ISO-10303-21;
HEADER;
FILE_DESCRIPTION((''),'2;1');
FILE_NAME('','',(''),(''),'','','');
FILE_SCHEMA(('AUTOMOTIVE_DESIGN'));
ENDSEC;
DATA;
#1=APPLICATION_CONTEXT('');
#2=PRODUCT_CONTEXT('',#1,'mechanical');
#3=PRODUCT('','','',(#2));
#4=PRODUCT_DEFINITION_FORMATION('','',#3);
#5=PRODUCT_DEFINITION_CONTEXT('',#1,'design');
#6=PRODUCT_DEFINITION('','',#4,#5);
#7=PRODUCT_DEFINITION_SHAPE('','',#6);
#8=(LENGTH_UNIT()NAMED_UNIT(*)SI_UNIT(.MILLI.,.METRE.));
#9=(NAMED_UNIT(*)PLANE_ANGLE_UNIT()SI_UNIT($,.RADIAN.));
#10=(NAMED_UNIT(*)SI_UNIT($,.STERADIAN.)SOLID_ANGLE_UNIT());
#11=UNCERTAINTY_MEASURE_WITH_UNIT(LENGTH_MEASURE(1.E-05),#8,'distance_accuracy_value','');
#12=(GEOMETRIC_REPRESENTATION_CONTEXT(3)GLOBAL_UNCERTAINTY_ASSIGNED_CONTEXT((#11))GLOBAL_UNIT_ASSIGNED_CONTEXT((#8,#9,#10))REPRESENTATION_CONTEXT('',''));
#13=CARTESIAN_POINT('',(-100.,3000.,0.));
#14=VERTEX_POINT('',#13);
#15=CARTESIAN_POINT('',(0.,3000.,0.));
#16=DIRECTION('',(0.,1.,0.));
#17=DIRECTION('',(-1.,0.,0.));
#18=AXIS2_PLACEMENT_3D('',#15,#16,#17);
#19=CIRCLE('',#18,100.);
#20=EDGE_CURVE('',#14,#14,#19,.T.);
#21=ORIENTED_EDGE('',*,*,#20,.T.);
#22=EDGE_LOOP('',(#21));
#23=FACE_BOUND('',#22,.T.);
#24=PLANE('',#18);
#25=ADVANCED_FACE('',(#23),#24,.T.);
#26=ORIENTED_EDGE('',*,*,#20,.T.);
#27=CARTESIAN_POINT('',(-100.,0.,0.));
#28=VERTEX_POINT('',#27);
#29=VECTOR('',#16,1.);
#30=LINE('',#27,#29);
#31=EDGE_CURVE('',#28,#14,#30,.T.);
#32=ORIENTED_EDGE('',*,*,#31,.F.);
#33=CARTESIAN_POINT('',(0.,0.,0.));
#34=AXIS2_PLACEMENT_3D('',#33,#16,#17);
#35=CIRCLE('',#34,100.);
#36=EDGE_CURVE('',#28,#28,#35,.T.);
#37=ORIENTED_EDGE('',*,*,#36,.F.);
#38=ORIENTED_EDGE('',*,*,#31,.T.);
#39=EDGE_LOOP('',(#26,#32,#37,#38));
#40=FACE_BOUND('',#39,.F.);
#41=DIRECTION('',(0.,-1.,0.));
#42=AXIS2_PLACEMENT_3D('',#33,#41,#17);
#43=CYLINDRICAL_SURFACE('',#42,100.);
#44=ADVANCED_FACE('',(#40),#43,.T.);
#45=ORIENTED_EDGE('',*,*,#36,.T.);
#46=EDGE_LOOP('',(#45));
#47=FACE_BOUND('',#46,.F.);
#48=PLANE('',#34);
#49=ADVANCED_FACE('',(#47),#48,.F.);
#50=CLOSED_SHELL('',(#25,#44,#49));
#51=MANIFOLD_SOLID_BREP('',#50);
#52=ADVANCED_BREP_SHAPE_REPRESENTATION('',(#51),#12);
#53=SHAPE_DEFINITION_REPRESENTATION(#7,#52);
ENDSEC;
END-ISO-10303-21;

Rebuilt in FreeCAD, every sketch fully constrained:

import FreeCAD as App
import Part
import Sketcher

V = App.Vector

doc = App.newDocument("Part")
body = doc.addObject("PartDesign::Body", "Body")

# Sketch on XZ plane
sketch1 = body.newObject("Sketcher::SketchObject", "Sketch")
sketch1.AttachmentSupport = (doc.getObject("XZ_Plane"), [""])
sketch1.MapMode = "FlatFace"
sketch1.addGeometry(Part.Circle(V(0, 0, 0), V(0, 0, 1), 100), False)
sketch1.addConstraint(Sketcher.Constraint("Coincident", 0, 3, -1, 1))
sketch1.addConstraint(Sketcher.Constraint("Diameter", 0, 200.0))
pad1 = body.newObject("PartDesign::Pad", "Pad")
pad1.Profile = sketch1
pad1.Length = 3000
pad1.Reversed = True

doc.recompute()
